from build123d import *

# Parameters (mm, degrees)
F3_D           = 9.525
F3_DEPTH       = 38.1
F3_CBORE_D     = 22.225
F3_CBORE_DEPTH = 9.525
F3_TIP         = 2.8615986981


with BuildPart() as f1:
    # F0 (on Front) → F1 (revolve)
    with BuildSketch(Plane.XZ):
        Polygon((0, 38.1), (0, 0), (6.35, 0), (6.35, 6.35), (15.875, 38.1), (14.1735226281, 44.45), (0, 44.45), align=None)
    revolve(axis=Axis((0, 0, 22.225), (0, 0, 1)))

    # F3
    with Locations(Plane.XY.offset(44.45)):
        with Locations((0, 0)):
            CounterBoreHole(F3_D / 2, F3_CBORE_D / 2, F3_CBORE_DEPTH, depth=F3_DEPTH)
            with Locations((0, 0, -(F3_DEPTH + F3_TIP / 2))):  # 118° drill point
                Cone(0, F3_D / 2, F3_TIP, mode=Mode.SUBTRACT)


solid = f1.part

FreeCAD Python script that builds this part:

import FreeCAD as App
import Part
import Sketcher
from FreeCAD import Vector
Q = App.Units.Quantity


def add_polygon(sketch, points):
    """Adds a closed chain of lines whose ends are joined by coincident constraints."""
    first, n = sketch.GeometryCount, len(points)
    for a, b in zip(points, points[1:] + points[:1]):
        sketch.addGeometry(Part.LineSegment(App.Vector(*a, 0), App.Vector(*b, 0)), False)
    for i in range(n):
        sketch.addConstraint(Sketcher.Constraint("Coincident", first + i, 2, first + (i + 1) % n, 1))

doc = App.newDocument("Part")
body = doc.addObject("PartDesign::Body", "Body")

sketch1 = body.newObject("Sketcher::SketchObject", "Sketch")
sketch1.AttachmentSupport = (doc.getObject("XZ_Plane"), [""])
sketch1.MapMode = "FlatFace"
add_polygon(sketch1, [(0, 0), (6.35, 0), (6.35, 6.35), (15.875, 38.1), (14.173523, 44.45), (0, 44.45)])
sketch1.addConstraint([
    Sketcher.Constraint("Horizontal", 0),
    Sketcher.Constraint("Vertical", 1),
    Sketcher.Constraint("Horizontal", 4),
    Sketcher.Constraint("Vertical", 5),
    Sketcher.Constraint("Coincident", 5, 2, -1, 1),
    Sketcher.Constraint("Equal", 0, 1),
    Sketcher.Constraint("Angle", 3, Q("105 deg")),
    Sketcher.Constraint("DistanceX", 0, 1, 0, 2, Q("0.25 in")),
    Sketcher.Constraint("DistanceY", 5, 2, 5, 1, Q("1.75 in")),
    Sketcher.Constraint("DistanceY", -1, 1, 2, 2, Q("1.5 in")),
    Sketcher.Constraint("DistanceX", -1, 1, 2, 2, Q("0.625 in")),
])
revolution = body.newObject("PartDesign::Revolution", "Revolution")
revolution.Profile = sketch1
revolution.ReferenceAxis = (sketch1, ["V_Axis"])
revolution.Angle = 360

sketch2 = body.newObject("Sketcher::SketchObject", "Sketch001")
sketch2.AttachmentSupport = (doc.getObject("XY_Plane"), [""])
sketch2.MapMode = "FlatFace"
sketch2.AttachmentOffset = App.Placement(Vector(0, 0, 1.75 * 25.4), App.Rotation())
sketch2.addGeometry(Part.Circle(Vector(0, 0, 0), Vector(0, 0, 1), 4.7625), False)
sketch2.addConstraint([
    Sketcher.Constraint("Coincident", 0, 3, -1, 1),
    Sketcher.Constraint("Diameter", 0, Q("0.375 in")),
])
doc.recompute()
hole = body.newObject("PartDesign::Hole", "Hole")
hole.Profile = sketch2
hole.ThreadType = "None"
hole.Diameter = Q("0.375 in")
hole.DepthType = "Dimension"
hole.Depth = Q("1.5 in")
hole.DrillPoint = "Angled"
hole.DrillPointAngle = 118
hole.HoleCutType = "Counterbore"
hole.HoleCutDiameter = Q("0.875 in")
hole.HoleCutDepth = Q("0.375 in")

doc.recompute()
